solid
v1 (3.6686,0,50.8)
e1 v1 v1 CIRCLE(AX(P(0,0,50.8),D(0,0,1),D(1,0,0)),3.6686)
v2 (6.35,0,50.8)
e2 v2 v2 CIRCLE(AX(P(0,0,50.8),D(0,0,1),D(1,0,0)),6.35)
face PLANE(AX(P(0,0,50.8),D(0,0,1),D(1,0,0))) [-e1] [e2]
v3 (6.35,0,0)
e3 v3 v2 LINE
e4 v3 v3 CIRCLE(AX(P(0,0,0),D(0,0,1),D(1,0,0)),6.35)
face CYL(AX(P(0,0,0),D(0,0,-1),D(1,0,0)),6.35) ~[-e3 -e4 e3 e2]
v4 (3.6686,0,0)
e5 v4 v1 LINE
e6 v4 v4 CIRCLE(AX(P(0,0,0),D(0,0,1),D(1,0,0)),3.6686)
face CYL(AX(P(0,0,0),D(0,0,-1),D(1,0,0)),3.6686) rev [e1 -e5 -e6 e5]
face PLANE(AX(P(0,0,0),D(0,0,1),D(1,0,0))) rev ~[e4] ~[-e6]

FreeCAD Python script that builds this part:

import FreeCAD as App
import Part
import Sketcher
from FreeCAD import Vector
Q = App.Units.Quantity

doc = App.newDocument("Part")
body = doc.addObject("PartDesign::Body", "Body")

sketch1 = body.newObject("Sketcher::SketchObject", "Sketch")
sketch1.AttachmentSupport = (doc.getObject("XY_Plane"), [""])
sketch1.MapMode = "FlatFace"
sketch1.addGeometry([
    Part.Circle(Vector(0, 0, 0), Vector(0, 0, 1), 6.3),
    Part.Circle(Vector(0, 0, 0), Vector(0, 0, 1), 3.7),
], False)
sketch1.addConstraint([
    Sketcher.Constraint("Coincident", 0, 3, -1, 1),
    Sketcher.Constraint("Coincident", 1, 3, -1, 1),
    Sketcher.Constraint("Diameter", 0, Q("0.5 in")),
    Sketcher.Constraint("Diameter", 1, Q("7.3372 mm")),
])
pad1 = body.newObject("PartDesign::Pad", "Pad")
pad1.Profile = sketch1
pad1.Length = Q("2 in")

doc.recompute()
